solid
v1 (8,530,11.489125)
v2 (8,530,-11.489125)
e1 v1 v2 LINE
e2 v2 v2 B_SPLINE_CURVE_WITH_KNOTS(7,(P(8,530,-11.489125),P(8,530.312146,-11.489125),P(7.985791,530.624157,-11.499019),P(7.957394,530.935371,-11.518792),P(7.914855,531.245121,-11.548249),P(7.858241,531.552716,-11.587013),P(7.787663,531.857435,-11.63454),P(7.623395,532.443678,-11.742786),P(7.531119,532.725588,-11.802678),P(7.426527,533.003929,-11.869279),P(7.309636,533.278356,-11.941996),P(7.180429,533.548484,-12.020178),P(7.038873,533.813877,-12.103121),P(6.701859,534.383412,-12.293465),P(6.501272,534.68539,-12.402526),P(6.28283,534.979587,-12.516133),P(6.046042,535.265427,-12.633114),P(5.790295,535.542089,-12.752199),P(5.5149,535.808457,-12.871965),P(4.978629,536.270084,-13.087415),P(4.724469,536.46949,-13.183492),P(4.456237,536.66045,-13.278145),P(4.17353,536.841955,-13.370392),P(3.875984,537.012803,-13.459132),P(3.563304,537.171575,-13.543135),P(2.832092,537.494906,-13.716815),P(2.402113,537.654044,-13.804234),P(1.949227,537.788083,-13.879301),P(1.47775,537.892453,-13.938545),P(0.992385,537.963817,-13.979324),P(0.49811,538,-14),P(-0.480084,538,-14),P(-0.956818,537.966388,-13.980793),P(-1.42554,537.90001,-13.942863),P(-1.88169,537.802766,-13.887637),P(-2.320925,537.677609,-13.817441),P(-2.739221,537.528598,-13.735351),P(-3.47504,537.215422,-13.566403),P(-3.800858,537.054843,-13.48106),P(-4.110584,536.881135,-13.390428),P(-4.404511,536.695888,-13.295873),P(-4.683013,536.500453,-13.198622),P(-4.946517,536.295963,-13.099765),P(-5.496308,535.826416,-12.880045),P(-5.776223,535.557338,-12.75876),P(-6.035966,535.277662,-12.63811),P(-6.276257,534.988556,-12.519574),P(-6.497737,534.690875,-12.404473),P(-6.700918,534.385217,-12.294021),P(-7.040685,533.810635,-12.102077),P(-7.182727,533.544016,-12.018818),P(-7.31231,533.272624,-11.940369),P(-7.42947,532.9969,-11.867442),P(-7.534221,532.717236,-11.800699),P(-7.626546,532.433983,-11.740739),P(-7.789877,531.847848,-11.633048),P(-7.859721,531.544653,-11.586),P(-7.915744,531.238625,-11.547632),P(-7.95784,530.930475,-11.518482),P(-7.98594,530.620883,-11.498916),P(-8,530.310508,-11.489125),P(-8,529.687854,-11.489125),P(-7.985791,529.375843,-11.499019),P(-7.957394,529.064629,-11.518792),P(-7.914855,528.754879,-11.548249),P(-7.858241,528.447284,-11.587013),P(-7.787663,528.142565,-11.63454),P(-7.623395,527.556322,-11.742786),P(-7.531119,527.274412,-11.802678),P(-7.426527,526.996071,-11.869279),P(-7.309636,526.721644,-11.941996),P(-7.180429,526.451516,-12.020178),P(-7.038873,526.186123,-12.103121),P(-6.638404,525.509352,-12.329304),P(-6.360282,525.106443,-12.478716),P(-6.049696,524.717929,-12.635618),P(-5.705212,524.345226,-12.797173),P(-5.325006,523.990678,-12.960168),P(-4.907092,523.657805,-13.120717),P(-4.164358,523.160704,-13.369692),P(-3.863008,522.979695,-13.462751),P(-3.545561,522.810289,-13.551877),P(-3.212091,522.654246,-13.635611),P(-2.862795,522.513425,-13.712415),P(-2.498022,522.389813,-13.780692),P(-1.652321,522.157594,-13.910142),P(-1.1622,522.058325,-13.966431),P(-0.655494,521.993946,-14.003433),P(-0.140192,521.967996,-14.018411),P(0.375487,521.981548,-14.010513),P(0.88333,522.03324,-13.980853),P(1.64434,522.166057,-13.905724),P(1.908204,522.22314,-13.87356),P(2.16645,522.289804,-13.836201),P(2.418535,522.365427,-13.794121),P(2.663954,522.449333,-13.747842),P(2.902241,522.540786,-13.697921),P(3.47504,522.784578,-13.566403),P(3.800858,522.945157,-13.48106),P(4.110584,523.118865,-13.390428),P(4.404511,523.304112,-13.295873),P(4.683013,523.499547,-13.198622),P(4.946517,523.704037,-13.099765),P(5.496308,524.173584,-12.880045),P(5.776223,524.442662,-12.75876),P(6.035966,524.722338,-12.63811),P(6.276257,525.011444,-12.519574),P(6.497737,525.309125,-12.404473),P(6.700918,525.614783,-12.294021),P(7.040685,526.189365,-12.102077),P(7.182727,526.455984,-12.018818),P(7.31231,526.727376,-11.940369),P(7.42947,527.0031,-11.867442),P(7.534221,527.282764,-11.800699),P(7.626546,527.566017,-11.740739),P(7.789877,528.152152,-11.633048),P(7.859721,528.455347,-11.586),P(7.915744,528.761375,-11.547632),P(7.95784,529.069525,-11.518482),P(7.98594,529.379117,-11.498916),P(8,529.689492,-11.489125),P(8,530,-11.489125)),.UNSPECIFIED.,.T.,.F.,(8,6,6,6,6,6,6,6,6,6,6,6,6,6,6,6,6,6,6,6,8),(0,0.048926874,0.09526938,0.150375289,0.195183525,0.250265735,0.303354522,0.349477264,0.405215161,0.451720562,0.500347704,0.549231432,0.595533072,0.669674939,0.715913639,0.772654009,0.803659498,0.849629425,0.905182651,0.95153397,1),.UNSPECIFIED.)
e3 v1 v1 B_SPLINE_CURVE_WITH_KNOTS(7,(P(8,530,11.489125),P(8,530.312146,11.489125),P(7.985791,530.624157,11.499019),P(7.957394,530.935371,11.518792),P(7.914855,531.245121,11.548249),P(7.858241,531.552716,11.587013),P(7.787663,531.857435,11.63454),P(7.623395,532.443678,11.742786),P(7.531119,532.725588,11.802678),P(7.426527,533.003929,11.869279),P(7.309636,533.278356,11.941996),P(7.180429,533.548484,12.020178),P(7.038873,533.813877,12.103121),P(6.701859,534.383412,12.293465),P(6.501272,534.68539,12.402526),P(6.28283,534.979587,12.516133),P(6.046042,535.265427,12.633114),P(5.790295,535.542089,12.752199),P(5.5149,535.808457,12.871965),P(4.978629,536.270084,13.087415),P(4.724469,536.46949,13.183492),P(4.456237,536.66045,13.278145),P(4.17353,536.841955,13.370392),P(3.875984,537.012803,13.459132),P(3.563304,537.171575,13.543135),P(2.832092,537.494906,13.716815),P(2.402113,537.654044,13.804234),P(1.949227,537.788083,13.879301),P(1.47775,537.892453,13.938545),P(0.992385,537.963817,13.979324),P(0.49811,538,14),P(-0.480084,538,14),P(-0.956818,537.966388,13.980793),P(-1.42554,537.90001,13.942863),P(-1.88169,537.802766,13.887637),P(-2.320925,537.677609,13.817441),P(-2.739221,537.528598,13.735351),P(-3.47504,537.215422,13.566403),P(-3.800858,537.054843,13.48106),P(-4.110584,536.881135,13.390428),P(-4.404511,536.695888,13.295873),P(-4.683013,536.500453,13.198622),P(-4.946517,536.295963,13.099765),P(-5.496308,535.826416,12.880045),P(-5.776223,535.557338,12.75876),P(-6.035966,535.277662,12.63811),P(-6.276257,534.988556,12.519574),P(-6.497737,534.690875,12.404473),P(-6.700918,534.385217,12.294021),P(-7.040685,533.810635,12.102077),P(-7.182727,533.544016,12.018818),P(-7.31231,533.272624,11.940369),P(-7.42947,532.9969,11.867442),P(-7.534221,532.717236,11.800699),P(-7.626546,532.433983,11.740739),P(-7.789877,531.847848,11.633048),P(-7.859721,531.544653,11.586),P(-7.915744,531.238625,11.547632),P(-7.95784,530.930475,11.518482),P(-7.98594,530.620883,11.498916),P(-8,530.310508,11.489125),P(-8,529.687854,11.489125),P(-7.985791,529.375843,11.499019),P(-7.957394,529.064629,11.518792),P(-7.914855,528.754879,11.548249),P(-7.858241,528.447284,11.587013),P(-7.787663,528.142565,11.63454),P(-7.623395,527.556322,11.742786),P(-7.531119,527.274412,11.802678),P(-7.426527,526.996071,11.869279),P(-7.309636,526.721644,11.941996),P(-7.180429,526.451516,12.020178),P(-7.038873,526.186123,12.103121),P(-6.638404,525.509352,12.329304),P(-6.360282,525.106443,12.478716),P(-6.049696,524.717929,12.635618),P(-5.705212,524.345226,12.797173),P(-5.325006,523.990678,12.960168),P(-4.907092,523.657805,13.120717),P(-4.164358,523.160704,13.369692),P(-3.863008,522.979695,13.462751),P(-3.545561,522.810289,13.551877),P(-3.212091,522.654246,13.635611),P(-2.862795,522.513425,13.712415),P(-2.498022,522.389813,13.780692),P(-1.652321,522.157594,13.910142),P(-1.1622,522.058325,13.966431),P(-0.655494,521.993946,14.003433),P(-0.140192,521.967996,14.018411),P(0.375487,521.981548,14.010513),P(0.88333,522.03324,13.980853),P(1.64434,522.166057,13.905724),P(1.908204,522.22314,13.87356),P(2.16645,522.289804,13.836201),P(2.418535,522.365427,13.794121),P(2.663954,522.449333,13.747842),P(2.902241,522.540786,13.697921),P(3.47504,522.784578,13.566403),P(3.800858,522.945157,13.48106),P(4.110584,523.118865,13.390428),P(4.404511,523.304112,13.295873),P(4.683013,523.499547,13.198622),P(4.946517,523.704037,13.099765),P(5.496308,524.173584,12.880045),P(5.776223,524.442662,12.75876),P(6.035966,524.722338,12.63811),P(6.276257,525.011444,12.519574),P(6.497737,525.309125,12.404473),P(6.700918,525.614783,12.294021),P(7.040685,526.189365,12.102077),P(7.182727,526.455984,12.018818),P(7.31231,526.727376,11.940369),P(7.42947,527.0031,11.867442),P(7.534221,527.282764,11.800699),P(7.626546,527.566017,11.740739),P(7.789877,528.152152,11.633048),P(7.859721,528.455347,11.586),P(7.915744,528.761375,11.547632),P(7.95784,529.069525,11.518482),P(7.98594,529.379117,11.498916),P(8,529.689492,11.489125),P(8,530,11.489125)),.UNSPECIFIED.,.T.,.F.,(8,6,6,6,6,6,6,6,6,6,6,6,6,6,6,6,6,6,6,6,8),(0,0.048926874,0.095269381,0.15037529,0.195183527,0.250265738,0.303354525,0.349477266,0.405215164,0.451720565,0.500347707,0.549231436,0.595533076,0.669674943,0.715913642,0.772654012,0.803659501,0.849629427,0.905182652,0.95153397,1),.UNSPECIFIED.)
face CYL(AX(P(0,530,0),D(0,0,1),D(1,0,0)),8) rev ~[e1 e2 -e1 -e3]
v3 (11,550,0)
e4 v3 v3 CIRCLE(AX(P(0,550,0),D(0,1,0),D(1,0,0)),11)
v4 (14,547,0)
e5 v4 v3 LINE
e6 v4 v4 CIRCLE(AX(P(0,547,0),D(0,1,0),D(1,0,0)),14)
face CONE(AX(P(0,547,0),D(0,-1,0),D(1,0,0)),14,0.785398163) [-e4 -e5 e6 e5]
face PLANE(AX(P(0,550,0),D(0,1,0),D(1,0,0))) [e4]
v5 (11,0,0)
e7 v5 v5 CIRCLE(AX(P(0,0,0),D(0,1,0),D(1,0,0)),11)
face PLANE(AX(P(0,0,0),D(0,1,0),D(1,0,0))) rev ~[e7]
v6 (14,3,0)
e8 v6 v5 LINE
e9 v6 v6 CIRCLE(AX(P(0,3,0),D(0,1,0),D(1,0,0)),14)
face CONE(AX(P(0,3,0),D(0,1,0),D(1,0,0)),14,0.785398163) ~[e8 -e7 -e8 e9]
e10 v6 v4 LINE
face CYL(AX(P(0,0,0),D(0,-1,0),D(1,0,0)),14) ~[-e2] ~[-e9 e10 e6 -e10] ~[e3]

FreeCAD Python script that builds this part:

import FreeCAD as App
import Part
import Sketcher


def edges_at(feature, points):
    """Names of the edges that pass closest to the given points."""
    edges = feature.Shape.Edges
    near = lambda p: min(range(len(edges)), key=lambda i: edges[i].distToShape(Part.Vertex(*p))[0])
    return sorted({f"Edge{near(p) + 1}" for p in points})

doc = App.newDocument("Part")
body = doc.addObject("PartDesign::Body", "Body")

# Sketch on XZ plane
sketch1 = body.newObject("Sketcher::SketchObject", "Sketch")
sketch1.AttachmentSupport = (doc.getObject("XZ_Plane"), [""])
sketch1.MapMode = "FlatFace"
sketch1.addGeometry(Part.Circle(App.Vector(0, 0, 0), App.Vector(0, 0, 1), 14), False)
sketch1.addConstraint([
    Sketcher.Constraint("Coincident", 0, 3, -1, 1),
    Sketcher.Constraint("Diameter", 0, 28.0),
])
pad1 = body.newObject("PartDesign::Pad", "Pad")
pad1.Profile = sketch1
pad1.Length = 550
pad1.Reversed = True

# Sketch on XY plane
sketch2 = body.newObject("Sketcher::SketchObject", "Sketch001")
sketch2.AttachmentSupport = (doc.getObject("XY_Plane"), [""])
sketch2.MapMode = "FlatFace"
sketch2.addGeometry(Part.Circle(App.Vector(0, 530, 0), App.Vector(0, 0, 1), 8), False)
sketch2.addConstraint([
    Sketcher.Constraint("PointOnObject", 0, 3, -2),
    Sketcher.Constraint("Diameter", 0, 16.0),
    Sketcher.Constraint("DistanceY", -1, 1, 0, 3, 530.0),
])
pocket1 = body.newObject("PartDesign::Pocket", "Pocket")
pocket1.Profile = sketch2
pocket1.Type = "ThroughAll"
pocket1.Midplane = True
doc.recompute()

chamfer = body.newObject("PartDesign::Chamfer", "Chamfer")
chamfer.Base = (pocket1, edges_at(pocket1, [(-14, 0, 0), (-14, 550, 0)]))
chamfer.Size = 3

doc.recompute()
